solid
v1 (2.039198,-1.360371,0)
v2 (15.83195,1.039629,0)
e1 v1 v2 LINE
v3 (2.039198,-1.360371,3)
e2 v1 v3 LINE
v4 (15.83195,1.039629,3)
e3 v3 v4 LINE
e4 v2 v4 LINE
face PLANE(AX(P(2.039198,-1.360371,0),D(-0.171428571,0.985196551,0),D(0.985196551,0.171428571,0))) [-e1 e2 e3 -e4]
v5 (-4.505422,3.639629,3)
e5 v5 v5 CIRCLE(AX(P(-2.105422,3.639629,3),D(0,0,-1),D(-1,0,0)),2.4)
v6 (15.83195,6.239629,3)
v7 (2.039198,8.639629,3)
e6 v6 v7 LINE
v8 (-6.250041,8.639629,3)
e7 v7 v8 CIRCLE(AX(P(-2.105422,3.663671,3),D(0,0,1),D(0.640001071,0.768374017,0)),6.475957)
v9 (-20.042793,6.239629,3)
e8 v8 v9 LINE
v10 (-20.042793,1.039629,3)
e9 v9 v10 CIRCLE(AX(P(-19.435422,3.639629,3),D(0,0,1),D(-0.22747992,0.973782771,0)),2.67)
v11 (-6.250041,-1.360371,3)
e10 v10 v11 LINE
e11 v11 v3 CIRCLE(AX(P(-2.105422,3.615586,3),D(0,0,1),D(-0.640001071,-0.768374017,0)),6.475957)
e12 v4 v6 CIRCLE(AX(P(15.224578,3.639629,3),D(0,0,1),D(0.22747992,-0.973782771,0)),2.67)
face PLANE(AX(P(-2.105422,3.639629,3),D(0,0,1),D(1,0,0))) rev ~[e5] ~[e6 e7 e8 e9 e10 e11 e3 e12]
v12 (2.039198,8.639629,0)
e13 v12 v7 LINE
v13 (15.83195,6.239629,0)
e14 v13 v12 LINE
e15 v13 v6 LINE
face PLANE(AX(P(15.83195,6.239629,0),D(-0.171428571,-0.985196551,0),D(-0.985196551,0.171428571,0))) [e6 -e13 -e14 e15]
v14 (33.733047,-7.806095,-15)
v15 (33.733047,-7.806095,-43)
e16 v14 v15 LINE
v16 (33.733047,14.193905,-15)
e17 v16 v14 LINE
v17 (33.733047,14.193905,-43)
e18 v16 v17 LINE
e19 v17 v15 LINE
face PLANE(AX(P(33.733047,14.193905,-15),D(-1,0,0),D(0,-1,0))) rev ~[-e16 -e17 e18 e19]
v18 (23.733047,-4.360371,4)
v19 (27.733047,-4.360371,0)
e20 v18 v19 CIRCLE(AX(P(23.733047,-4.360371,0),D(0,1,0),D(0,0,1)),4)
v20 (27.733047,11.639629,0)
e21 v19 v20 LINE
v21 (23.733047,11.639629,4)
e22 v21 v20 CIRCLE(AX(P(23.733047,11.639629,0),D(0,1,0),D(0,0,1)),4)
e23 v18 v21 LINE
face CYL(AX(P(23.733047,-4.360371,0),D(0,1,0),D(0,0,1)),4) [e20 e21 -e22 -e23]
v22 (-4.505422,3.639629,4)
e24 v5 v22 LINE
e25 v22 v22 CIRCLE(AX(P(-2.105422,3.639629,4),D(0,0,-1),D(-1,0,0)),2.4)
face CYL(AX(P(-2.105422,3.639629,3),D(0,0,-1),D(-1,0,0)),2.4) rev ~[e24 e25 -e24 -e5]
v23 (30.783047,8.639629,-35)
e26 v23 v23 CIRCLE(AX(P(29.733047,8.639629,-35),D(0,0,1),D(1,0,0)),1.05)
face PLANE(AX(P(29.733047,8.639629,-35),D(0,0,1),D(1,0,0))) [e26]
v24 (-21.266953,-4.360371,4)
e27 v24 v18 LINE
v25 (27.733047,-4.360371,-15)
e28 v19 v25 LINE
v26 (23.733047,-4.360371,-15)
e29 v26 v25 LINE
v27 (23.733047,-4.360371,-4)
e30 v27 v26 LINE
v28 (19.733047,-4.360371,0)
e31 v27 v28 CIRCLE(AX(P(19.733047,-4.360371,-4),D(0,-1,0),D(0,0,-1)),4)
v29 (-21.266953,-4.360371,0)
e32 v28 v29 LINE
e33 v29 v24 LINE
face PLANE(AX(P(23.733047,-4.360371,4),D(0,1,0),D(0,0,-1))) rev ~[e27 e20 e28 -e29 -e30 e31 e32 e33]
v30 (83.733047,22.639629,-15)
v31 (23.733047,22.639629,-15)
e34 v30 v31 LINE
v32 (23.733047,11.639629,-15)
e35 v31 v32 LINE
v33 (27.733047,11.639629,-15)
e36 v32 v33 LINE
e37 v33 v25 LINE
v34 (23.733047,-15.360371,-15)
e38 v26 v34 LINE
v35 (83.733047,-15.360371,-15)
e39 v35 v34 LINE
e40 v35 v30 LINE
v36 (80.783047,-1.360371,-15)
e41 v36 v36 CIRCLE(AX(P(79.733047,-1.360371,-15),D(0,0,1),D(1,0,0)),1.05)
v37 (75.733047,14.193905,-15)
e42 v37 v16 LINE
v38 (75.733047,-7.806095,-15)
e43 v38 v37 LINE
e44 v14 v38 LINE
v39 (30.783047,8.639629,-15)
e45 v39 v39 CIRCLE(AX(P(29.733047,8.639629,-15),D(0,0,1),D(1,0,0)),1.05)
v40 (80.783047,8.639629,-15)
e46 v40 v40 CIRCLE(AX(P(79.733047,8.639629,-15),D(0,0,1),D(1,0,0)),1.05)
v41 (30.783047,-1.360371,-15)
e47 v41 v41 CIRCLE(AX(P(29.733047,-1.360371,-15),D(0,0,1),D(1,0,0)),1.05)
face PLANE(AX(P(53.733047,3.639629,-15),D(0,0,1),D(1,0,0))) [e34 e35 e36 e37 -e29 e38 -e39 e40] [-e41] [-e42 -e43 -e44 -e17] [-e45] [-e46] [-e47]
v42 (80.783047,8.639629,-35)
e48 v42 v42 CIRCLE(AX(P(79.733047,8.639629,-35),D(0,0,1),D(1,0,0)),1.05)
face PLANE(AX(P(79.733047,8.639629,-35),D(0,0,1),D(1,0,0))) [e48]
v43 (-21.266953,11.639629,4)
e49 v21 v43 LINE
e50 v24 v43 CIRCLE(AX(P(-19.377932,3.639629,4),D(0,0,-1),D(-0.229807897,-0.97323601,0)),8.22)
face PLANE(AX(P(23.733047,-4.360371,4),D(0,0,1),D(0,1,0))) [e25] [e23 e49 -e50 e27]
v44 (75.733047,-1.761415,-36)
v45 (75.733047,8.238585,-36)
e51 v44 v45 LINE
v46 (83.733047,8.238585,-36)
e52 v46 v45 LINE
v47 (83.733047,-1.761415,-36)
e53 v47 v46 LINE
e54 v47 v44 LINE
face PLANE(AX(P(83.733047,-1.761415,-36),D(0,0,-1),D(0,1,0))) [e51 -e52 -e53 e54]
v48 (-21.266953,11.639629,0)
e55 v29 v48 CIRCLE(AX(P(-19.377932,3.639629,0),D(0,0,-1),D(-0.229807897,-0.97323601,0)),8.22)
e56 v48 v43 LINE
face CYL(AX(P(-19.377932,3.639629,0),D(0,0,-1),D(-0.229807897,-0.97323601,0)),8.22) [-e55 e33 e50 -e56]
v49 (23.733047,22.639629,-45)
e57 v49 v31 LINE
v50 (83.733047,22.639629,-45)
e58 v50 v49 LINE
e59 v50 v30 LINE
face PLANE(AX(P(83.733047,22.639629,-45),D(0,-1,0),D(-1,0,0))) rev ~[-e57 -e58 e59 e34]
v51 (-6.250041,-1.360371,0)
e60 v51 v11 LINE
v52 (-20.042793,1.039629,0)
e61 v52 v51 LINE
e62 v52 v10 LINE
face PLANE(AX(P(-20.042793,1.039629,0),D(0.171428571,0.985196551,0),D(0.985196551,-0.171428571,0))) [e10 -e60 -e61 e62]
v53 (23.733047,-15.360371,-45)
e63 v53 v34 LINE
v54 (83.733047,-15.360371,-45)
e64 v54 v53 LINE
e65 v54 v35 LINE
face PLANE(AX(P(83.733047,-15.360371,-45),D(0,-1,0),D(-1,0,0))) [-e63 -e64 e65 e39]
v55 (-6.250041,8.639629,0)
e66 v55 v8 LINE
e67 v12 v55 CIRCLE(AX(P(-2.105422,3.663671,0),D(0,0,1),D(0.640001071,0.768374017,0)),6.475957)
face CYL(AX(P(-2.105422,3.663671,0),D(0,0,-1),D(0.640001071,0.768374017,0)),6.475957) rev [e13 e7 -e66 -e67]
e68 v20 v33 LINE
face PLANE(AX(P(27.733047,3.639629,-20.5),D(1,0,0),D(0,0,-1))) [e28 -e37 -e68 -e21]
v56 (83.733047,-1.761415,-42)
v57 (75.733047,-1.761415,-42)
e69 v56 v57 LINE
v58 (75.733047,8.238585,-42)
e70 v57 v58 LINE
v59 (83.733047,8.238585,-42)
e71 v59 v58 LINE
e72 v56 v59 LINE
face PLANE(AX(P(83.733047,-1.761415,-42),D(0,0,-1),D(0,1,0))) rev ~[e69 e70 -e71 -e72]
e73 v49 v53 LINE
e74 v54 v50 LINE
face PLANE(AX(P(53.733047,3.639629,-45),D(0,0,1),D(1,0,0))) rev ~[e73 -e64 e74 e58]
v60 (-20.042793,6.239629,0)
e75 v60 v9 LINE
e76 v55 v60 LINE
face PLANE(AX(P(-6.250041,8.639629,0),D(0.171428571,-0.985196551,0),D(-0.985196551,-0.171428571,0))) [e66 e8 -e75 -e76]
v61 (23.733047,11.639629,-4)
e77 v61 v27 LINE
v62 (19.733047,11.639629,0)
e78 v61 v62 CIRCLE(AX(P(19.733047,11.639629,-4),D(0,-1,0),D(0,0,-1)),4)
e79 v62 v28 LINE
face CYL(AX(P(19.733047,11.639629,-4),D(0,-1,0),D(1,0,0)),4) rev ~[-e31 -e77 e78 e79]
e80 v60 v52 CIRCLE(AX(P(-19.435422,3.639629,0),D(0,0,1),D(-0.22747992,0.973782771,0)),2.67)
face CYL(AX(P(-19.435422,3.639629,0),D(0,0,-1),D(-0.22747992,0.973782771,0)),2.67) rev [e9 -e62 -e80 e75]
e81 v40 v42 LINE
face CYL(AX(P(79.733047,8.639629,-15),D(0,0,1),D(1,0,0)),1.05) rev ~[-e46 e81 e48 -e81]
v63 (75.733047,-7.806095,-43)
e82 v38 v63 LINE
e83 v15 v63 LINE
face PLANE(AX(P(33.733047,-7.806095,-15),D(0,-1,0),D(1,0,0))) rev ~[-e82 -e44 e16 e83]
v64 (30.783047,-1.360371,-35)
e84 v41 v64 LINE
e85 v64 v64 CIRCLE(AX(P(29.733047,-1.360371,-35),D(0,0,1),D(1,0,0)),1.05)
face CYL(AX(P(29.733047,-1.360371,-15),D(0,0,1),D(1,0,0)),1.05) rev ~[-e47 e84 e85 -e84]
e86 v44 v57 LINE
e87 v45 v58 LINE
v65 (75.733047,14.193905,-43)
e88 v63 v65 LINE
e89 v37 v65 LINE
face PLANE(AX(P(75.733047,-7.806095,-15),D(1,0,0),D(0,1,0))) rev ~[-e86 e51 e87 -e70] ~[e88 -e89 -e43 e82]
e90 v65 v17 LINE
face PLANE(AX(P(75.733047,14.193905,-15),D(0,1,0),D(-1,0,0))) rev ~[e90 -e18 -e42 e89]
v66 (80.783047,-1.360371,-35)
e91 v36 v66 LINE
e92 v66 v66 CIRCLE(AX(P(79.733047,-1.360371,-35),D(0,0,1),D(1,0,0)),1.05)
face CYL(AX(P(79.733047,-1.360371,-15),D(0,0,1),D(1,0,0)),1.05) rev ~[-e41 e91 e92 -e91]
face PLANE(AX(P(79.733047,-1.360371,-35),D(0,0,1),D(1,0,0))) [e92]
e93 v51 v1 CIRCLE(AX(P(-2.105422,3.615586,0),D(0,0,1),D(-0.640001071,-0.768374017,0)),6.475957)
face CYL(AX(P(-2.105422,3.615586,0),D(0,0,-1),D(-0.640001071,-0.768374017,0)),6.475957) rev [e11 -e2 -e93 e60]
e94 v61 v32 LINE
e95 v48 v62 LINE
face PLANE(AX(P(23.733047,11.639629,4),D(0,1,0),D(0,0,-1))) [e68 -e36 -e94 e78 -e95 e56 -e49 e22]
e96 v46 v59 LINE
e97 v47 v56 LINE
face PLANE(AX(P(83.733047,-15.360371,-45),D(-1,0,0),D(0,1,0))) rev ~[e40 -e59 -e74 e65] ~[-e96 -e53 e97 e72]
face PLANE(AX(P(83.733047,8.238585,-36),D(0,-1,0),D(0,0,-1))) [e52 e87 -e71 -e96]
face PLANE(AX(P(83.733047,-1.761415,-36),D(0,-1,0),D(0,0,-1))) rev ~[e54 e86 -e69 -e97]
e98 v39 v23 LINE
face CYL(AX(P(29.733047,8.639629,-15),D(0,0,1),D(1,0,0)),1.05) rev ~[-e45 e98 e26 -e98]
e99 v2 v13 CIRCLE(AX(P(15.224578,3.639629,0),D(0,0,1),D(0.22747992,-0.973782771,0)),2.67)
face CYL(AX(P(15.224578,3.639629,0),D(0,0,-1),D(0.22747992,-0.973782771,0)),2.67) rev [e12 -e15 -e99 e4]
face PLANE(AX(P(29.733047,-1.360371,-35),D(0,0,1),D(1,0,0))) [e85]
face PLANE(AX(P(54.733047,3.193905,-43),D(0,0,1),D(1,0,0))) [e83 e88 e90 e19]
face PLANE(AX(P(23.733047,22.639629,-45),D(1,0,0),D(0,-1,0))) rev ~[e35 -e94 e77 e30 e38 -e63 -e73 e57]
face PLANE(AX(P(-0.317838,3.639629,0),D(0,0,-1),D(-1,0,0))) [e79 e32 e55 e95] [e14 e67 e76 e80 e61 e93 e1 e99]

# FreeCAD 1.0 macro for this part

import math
import FreeCAD as App
import Part
import Sketcher
Q = App.Units.Quantity


def edges_at(feature, points):
    """Names of the edges that pass closest to the given points."""
    edges = feature.Shape.Edges
    near = lambda p: min(range(len(edges)), key=lambda i: edges[i].distToShape(Part.Vertex(*p))[0])
    return sorted({f"Edge{near(p) + 1}" for p in points})

doc = App.newDocument("Part")
body = doc.addObject("PartDesign::Body", "Body")

sketch1 = doc.addObject("Sketcher::SketchObject", "Sketch")
body.addObject(sketch1)
sketch1.AttachmentSupport = (doc.XY_Plane, [""])
sketch1.MapMode = "FlatFace"
sketch1.addGeometry([
    Part.LineSegment(App.Vector(23.733047, -4.360371, 0), App.Vector(23.733047, 11.639629, 0)),
    Part.LineSegment(App.Vector(23.733047, 11.639629, 0), App.Vector(-21.266953, 11.639629, 0)),
    Part.ArcOfCircle(Part.Circle(App.Vector(-19.377932, 3.639629, 0), App.Vector(0, 0, 1), 8.22), math.radians(103.285762), math.radians(256.714238)),
    Part.LineSegment(App.Vector(-21.266953, -4.360371, 0), App.Vector(23.733047, -4.360371, 0)),
], False)
sketch1.addConstraint([
    Sketcher.Constraint("Coincident", 0, 2, 1, 1),
    Sketcher.Constraint("Coincident", 1, 2, 2, 1),
    Sketcher.Constraint("Coincident", 2, 2, 3, 1),
    Sketcher.Constraint("Coincident", 3, 2, 0, 1),
    Sketcher.Constraint("Vertical", 0),
    Sketcher.Constraint("Horizontal", 1),
    Sketcher.Constraint("Horizontal", 3),
    Sketcher.Constraint("Vertical", 1, 2, 2, 2),
    Sketcher.Constraint("DistanceX", 1, 2, 1, 1, Q("45 mm")),
    Sketcher.Constraint("DistanceY", 0, 1, 0, 2, Q("16 mm")),
    Sketcher.Constraint("Radius", 2, Q("8.22 mm")),
    Sketcher.Constraint("DistanceX", 2, 3, -1, 1, Q("19.377932 mm")),
    Sketcher.Constraint("DistanceY", -1, 1, 2, 3, Q("3.639629 mm")),
])
pad1 = doc.addObject("PartDesign::Pad", "Pad")
body.addObject(pad1)
pad1.Profile = sketch1
pad1.Length = 4

sketch2 = doc.addObject("Sketcher::SketchObject", "Sketch001")
body.addObject(sketch2)
sketch2.AttachmentSupport = (doc.XY_Plane, [""])
sketch2.MapMode = "FlatFace"
sketch2.addGeometry([
    Part.LineSegment(App.Vector(-6.250041, 8.639629, 0), App.Vector(-20.042793, 6.239629, 0)),
    Part.ArcOfCircle(Part.Circle(App.Vector(-19.435422, 3.639629, 0), App.Vector(0, 0, 1), 2.67), math.radians(103.148749), math.radians(256.851251)),
    Part.LineSegment(App.Vector(-20.042793, 1.039629, 0), App.Vector(-6.250041, -1.360371, 0)),
    Part.ArcOfCircle(Part.Circle(App.Vector(-2.105422, 3.615586, 0), App.Vector(0, 0, 1), 6.475957), math.radians(-129.791899), math.radians(-50.208101)),
    Part.LineSegment(App.Vector(2.039198, -1.360371, 0), App.Vector(15.83195, 1.039629, 0)),
    Part.ArcOfCircle(Part.Circle(App.Vector(15.224578, 3.639629, 0), App.Vector(0, 0, 1), 2.67), math.radians(-76.851251), math.radians(76.851251)),
    Part.LineSegment(App.Vector(15.83195, 6.239629, 0), App.Vector(2.039198, 8.639629, 0)),
    Part.ArcOfCircle(Part.Circle(App.Vector(-2.105422, 3.663671, 0), App.Vector(0, 0, 1), 6.475957), math.radians(50.208101), math.radians(129.791899)),
], False)
sketch2.addConstraint([
    Sketcher.Constraint("Coincident", 0, 2, 1, 1),
    Sketcher.Constraint("Coincident", 1, 2, 2, 1),
    Sketcher.Constraint("Coincident", 2, 2, 3, 1),
    Sketcher.Constraint("Coincident", 3, 2, 4, 1),
    Sketcher.Constraint("Coincident", 4, 2, 5, 1),
    Sketcher.Constraint("Coincident", 5, 2, 6, 1),
    Sketcher.Constraint("Coincident", 6, 2, 7, 1),
    Sketcher.Constraint("Coincident", 7, 2, 0, 1),
    Sketcher.Constraint("Equal", 1, 5),
    Sketcher.Constraint("Equal", 3, 7),
    Sketcher.Constraint("Parallel", 0, 4),
    Sketcher.Constraint("Parallel", 2, 6),
    Sketcher.Constraint("Horizontal", 1, 3, 5, 3),
    Sketcher.Constraint("Horizontal", 2, 2, 3, 2),
    Sketcher.Constraint("Horizontal", 1, 2, 4, 2),
    Sketcher.Constraint("Horizontal", 0, 2, 5, 2),
    Sketcher.Constraint("Horizontal", 6, 2, 7, 2),
    Sketcher.Constraint("Vertical", 3, 3, 7, 3),
    Sketcher.Constraint("Vertical", 0, 2, 1, 2),
    Sketcher.Constraint("Vertical", 3, 2, 6, 2),
    Sketcher.Constraint("Radius", 1, Q("2.67 mm")),
    Sketcher.Constraint("Distance", 0, Q("14 mm")),
    Sketcher.Constraint("DistanceY", 2, 2, 1, 3, Q("5 mm")),
    Sketcher.Constraint("DistanceY", 1, 3, 0, 2, Q("2.6 mm")),
    Sketcher.Constraint("DistanceX", 1, 3, 3, 3, Q("17.33 mm")),
    Sketcher.Constraint("Radius", 3, Q("6.475957 mm")),
    Sketcher.Constraint("DistanceX", -1, 1, 3, 2, Q("2.039198 mm")),
    Sketcher.Constraint("DistanceY", -1, 1, 1, 3, Q("3.639629 mm")),
])
pocket1 = doc.addObject("PartDesign::Pocket", "Pocket")
body.addObject(pocket1)
pocket1.Profile = sketch2
pocket1.Length = 3
pocket1.Reversed = True

sketch3 = doc.addObject("Sketcher::SketchObject", "Sketch002")
body.addObject(sketch3)
sketch3.AttachmentSupport = (doc.YZ_Plane, [""])
sketch3.MapMode = "FlatFace"
sketch3.AttachmentOffset = App.Placement(App.Vector(0, 0, 23.733047), App.Rotation())
sketch3.addGeometry([
    Part.LineSegment(App.Vector(11.639629, 4, 0), App.Vector(-4.360371, 4, 0)),
    Part.LineSegment(App.Vector(-4.360371, 4, 0), App.Vector(-4.360371, -45, 0)),
    Part.LineSegment(App.Vector(-4.360371, -45, 0), App.Vector(11.639629, -45, 0)),
    Part.LineSegment(App.Vector(11.639629, -45, 0), App.Vector(11.639629, 4, 0)),
], False)
sketch3.addConstraint([
    Sketcher.Constraint("Coincident", 0, 2, 1, 1),
    Sketcher.Constraint("Coincident", 1, 2, 2, 1),
    Sketcher.Constraint("Coincident", 2, 2, 3, 1),
    Sketcher.Constraint("Coincident", 3, 2, 0, 1),
    Sketcher.Constraint("Horizontal", 0),
    Sketcher.Constraint("Vertical", 1),
    Sketcher.Constraint("Horizontal", 2),
    Sketcher.Constraint("Vertical", 3),
    Sketcher.Constraint("DistanceX", 0, 2, 0, 1, Q("16 mm")),
    Sketcher.Constraint("DistanceY", 1, 2, 1, 1, Q("49 mm")),
    Sketcher.Constraint("DistanceY", -1, 1, 0, 2, Q("4 mm")),
    Sketcher.Constraint("DistanceX", 0, 2, -1, 1, Q("4.360371 mm")),
])
pad2 = doc.addObject("PartDesign::Pad", "Pad001")
body.addObject(pad2)
pad2.Profile = sketch3
pad2.Length = 4

sketch4 = doc.addObject("Sketcher::SketchObject", "Sketch003")
body.addObject(sketch4)
sketch4.AttachmentSupport = (doc.XY_Plane, [""])
sketch4.MapMode = "FlatFace"
sketch4.AttachmentOffset = App.Placement(App.Vector(0, 0, -45), App.Rotation())
sketch4.addGeometry([
    Part.LineSegment(App.Vector(83.733047, -15.360371, 0), App.Vector(23.733047, -15.360371, 0)),
    Part.LineSegment(App.Vector(23.733047, -15.360371, 0), App.Vector(23.733047, 22.639629, 0)),
    Part.LineSegment(App.Vector(23.733047, 22.639629, 0), App.Vector(83.733047, 22.639629, 0)),
    Part.LineSegment(App.Vector(83.733047, 22.639629, 0), App.Vector(83.733047, -15.360371, 0)),
], False)
sketch4.addConstraint([
    Sketcher.Constraint("Coincident", 0, 2, 1, 1),
    Sketcher.Constraint("Coincident", 1, 2, 2, 1),
    Sketcher.Constraint("Coincident", 2, 2, 3, 1),
    Sketcher.Constraint("Coincident", 3, 2, 0, 1),
    Sketcher.Constraint("Horizontal", 0),
    Sketcher.Constraint("Vertical", 1),
    Sketcher.Constraint("Horizontal", 2),
    Sketcher.Constraint("Vertical", 3),
    Sketcher.Constraint("DistanceX", 0, 2, 0, 1, Q("60 mm")),
    Sketcher.Constraint("DistanceY", 1, 1, 1, 2, Q("38 mm")),
    Sketcher.Constraint("DistanceY", 0, 2, -1, 1, Q("15.360371 mm")),
    Sketcher.Constraint("DistanceX", -1, 1, 0, 2, Q("23.733047 mm")),
])
pad3 = doc.addObject("PartDesign::Pad", "Pad002")
body.addObject(pad3)
pad3.Profile = sketch4
pad3.Length = 30

sketch5 = doc.addObject("Sketcher::SketchObject", "Sketch004")
body.addObject(sketch5)
sketch5.AttachmentSupport = (doc.XY_Plane, [""])
sketch5.MapMode = "FlatFace"
sketch5.AttachmentOffset = App.Placement(App.Vector(0, 0, 3), App.Rotation())
sketch5.addGeometry(Part.Circle(App.Vector(-2.105422, 3.639629, 0), App.Vector(0, 0, 1), 2.4), False)
sketch5.addConstraint([
    Sketcher.Constraint("Diameter", 0, Q("4.8 mm")),
    Sketcher.Constraint("DistanceX", 0, 3, -1, 1, Q("2.105422 mm")),
    Sketcher.Constraint("DistanceY", -1, 1, 0, 3, Q("3.639629 mm")),
])
pocket2 = doc.addObject("PartDesign::Pocket", "Pocket001")
body.addObject(pocket2)
pocket2.Profile = sketch5
pocket2.Length = 1
pocket2.Reversed = True
doc.recompute()

fillet = doc.addObject("PartDesign::Fillet", "Fillet")
body.addObject(fillet)
fillet.Base = (pocket2, edges_at(pocket2, [(23.733, 3.64, 0)]))
fillet.Radius = 4
doc.recompute()

fillet2 = doc.addObject("PartDesign::Fillet", "Fillet001")
body.addObject(fillet2)
fillet2.Base = (fillet, edges_at(fillet, [(27.733, 3.64, 4)]))
fillet2.Radius = 4

sketch6 = doc.addObject("Sketcher::SketchObject", "Sketch005")
body.addObject(sketch6)
sketch6.AttachmentSupport = (doc.XY_Plane, [""])
sketch6.MapMode = "FlatFace"
sketch6.AttachmentOffset = App.Placement(App.Vector(0, 0, -15), App.Rotation())
sketch6.addGeometry([
    Part.LineSegment(App.Vector(75.733047, -7.806095, 0), App.Vector(75.733047, 14.193905, 0)),
    Part.LineSegment(App.Vector(75.733047, 14.193905, 0), App.Vector(33.733047, 14.193905, 0)),
    Part.LineSegment(App.Vector(33.733047, 14.193905, 0), App.Vector(33.733047, -7.806095, 0)),
    Part.LineSegment(App.Vector(33.733047, -7.806095, 0), App.Vector(75.733047, -7.806095, 0)),
], False)
sketch6.addConstraint([
    Sketcher.Constraint("Coincident", 0, 2, 1, 1),
    Sketcher.Constraint("Coincident", 1, 2, 2, 1),
    Sketcher.Constraint("Coincident", 2, 2, 3, 1),
    Sketcher.Constraint("Coincident", 3, 2, 0, 1),
    Sketcher.Constraint("Vertical", 0),
    Sketcher.Constraint("Horizontal", 1),
    Sketcher.Constraint("Vertical", 2),
    Sketcher.Constraint("Horizontal", 3),
    Sketcher.Constraint("DistanceX", 1, 2, 1, 1, Q("42 mm")),
    Sketcher.Constraint("DistanceY", 0, 1, 0, 2, Q("22 mm")),
    Sketcher.Constraint("DistanceX", -1, 1, 0, 2, Q("75.733047 mm")),
    Sketcher.Constraint("DistanceY", -1, 1, 0, 2, Q("14.193905 mm")),
])
pocket3 = doc.addObject("PartDesign::Pocket", "Pocket002")
body.addObject(pocket3)
pocket3.Profile = sketch6
pocket3.Length = 28

sketch7 = doc.addObject("Sketcher::SketchObject", "Sketch006")
body.addObject(sketch7)
sketch7.AttachmentSupport = (doc.XY_Plane, [""])
sketch7.MapMode = "FlatFace"
sketch7.AttachmentOffset = App.Placement(App.Vector(0, 0, -15), App.Rotation())
sketch7.addGeometry([
    Part.Circle(App.Vector(29.733047, 8.639629, 0), App.Vector(0, 0, 1), 1.05),
    Part.Circle(App.Vector(29.733047, -1.360371, 0), App.Vector(0, 0, 1), 1.05),
    Part.Circle(App.Vector(79.733047, 8.639629, 0), App.Vector(0, 0, 1), 1.05),
    Part.Circle(App.Vector(79.733047, -1.360371, 0), App.Vector(0, 0, 1), 1.05),
], False)
sketch7.addConstraint([
    Sketcher.Constraint("Equal", 0, 1),
    Sketcher.Constraint("Equal", 1, 2),
    Sketcher.Constraint("Equal", 2, 3),
    Sketcher.Constraint("Horizontal", 0, 3, 2, 3),
    Sketcher.Constraint("Horizontal", 1, 3, 3, 3),
    Sketcher.Constraint("Vertical", 0, 3, 1, 3),
    Sketcher.Constraint("Vertical", 2, 3, 3, 3),
    Sketcher.Constraint("Diameter", 0, Q("2.1 mm")),
    Sketcher.Constraint("DistanceY", 1, 3, 0, 3, Q("10 mm")),
    Sketcher.Constraint("DistanceX", 0, 3, 2, 3, Q("50 mm")),
    Sketcher.Constraint("DistanceY", -1, 1, 0, 3, Q("8.639629 mm")),
    Sketcher.Constraint("DistanceX", -1, 1, 0, 3, Q("29.733047 mm")),
])
pocket4 = doc.addObject("PartDesign::Pocket", "Pocket003")
body.addObject(pocket4)
pocket4.Profile = sketch7
pocket4.Length = 20

sketch8 = doc.addObject("Sketcher::SketchObject", "Sketch007")
body.addObject(sketch8)
sketch8.AttachmentSupport = (doc.YZ_Plane, [""])
sketch8.MapMode = "FlatFace"
sketch8.AttachmentOffset = App.Placement(App.Vector(0, 0, 83.733047), App.Rotation())
sketch8.addGeometry([
    Part.LineSegment(App.Vector(8.238585, -36, 0), App.Vector(-1.761415, -36, 0)),
    Part.LineSegment(App.Vector(-1.761415, -36, 0), App.Vector(-1.761415, -42, 0)),
    Part.LineSegment(App.Vector(-1.761415, -42, 0), App.Vector(8.238585, -42, 0)),
    Part.LineSegment(App.Vector(8.238585, -42, 0), App.Vector(8.238585, -36, 0)),
], False)
sketch8.addConstraint([
    Sketcher.Constraint("Coincident", 0, 2, 1, 1),
    Sketcher.Constraint("Coincident", 1, 2, 2, 1),
    Sketcher.Constraint("Coincident", 2, 2, 3, 1),
    Sketcher.Constraint("Coincident", 3, 2, 0, 1),
    Sketcher.Constraint("Horizontal", 0),
    Sketcher.Constraint("Vertical", 1),
    Sketcher.Constraint("Horizontal", 2),
    Sketcher.Constraint("Vertical", 3),
    Sketcher.Constraint("DistanceX", 0, 2, 0, 1, Q("10 mm")),
    Sketcher.Constraint("DistanceY", 1, 2, 1, 1, Q("6 mm")),
    Sketcher.Constraint("DistanceY", 0, 2, -1, 1, Q("36 mm")),
    Sketcher.Constraint("DistanceX", 0, 2, -1, 1, Q("1.761415 mm")),
])
pocket5 = doc.addObject("PartDesign::Pocket", "Pocket004")
body.addObject(pocket5)
pocket5.Profile = sketch8
pocket5.Length = 8

doc.recompute()
